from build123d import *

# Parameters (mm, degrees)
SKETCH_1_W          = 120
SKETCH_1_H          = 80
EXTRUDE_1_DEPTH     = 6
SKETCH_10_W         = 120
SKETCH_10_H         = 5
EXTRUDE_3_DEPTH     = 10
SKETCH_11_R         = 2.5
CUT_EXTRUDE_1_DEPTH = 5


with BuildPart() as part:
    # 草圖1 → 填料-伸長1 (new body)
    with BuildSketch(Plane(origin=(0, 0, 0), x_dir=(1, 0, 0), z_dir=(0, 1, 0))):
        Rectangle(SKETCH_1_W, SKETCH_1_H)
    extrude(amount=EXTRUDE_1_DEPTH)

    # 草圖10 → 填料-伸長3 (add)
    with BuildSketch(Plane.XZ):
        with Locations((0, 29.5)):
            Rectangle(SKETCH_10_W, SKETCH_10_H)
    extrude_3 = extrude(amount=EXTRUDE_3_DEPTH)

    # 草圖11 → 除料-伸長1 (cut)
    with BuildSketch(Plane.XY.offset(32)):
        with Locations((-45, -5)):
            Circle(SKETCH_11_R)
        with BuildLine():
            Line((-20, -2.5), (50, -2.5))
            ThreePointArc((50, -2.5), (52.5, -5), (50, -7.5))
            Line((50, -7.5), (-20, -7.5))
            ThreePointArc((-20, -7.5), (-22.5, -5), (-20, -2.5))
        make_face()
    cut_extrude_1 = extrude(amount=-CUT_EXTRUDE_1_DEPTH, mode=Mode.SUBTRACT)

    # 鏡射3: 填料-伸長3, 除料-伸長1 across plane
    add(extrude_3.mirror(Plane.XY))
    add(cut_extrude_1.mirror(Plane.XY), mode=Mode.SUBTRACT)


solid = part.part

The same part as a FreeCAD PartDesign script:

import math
import FreeCAD as App
import Part
import Sketcher
from FreeCAD import Vector
Q = App.Units.Quantity


def add_polygon(sketch, points):
    """Adds a closed chain of lines whose ends are joined by coincident constraints."""
    first, n = sketch.GeometryCount, len(points)
    for a, b in zip(points, points[1:] + points[:1]):
        sketch.addGeometry(Part.LineSegment(App.Vector(*a, 0), App.Vector(*b, 0)), False)
    for i in range(n):
        sketch.addConstraint(Sketcher.Constraint("Coincident", first + i, 2, first + (i + 1) % n, 1))

doc = App.newDocument("Part")
body = doc.addObject("PartDesign::Body", "Body")

sketch1 = body.newObject("Sketcher::SketchObject", "Sketch")
sketch1.AttachmentSupport = (doc.getObject("XZ_Plane"), [""])
sketch1.MapMode = "FlatFace"
add_polygon(sketch1, [(-60, -40), (-60, 40), (60, 40), (60, -40)])
sketch1.addConstraint(Sketcher.Constraint("Vertical", 0))
sketch1.addConstraint(Sketcher.Constraint("Horizontal", 1))
sketch1.addConstraint(Sketcher.Constraint("Vertical", 2))
sketch1.addConstraint(Sketcher.Constraint("Horizontal", 3))
sketch1.addConstraint(Sketcher.Constraint("Symmetric", 0, 2, 2, 2, -1, 1))
sketch1.addConstraint(Sketcher.Constraint("DistanceX", 1, 1, 1, 2, Q("120 mm")))
sketch1.addConstraint(Sketcher.Constraint("DistanceY", 0, 1, 0, 2, Q("80 mm")))
pad1 = body.newObject("PartDesign::Pad", "Pad")
pad1.Profile = sketch1
pad1.Length = 6
pad1.Reversed = True

sketch2 = body.newObject("Sketcher::SketchObject", "Sketch001")
sketch2.AttachmentSupport = (doc.getObject("XZ_Plane"), [""])
sketch2.MapMode = "FlatFace"
add_polygon(sketch2, [(-60, 32), (-60, 27), (60, 27), (60, 32)])
sketch2.addConstraint(Sketcher.Constraint("Vertical", 0))
sketch2.addConstraint(Sketcher.Constraint("Horizontal", 1))
sketch2.addConstraint(Sketcher.Constraint("Vertical", 2))
sketch2.addConstraint(Sketcher.Constraint("Horizontal", 3))
sketch2.addConstraint(Sketcher.Constraint("DistanceX", 1, 1, 1, 2, Q("120 mm")))
sketch2.addConstraint(Sketcher.Constraint("DistanceY", 0, 2, 0, 1, Q("5 mm")))
sketch2.addConstraint(Sketcher.Constraint("DistanceX", 0, 2, -1, 1, Q("60 mm")))
sketch2.addConstraint(Sketcher.Constraint("DistanceY", -1, 1, 0, 2, Q("27 mm")))
pad2 = body.newObject("PartDesign::Pad", "Pad001")
pad2.Profile = sketch2
pad2.Length = 10

sketch3 = body.newObject("Sketcher::SketchObject", "Sketch002")
sketch3.AttachmentSupport = (doc.getObject("XY_Plane"), [""])
sketch3.MapMode = "FlatFace"
sketch3.AttachmentOffset = App.Placement(Vector(0, 0, 32), App.Rotation())
sketch3.addGeometry(Part.Circle(Vector(-45, -5, 0), Vector(0, 0, 1), 2.5), False)
sketch3.addGeometry(Part.LineSegment(Vector(50, -2.5, 0), Vector(-20, -2.5, 0)), False)
sketch3.addGeometry(Part.ArcOfCircle(Part.Circle(Vector(-20, -5, 0), Vector(0, 0, 1), 2.5), math.radians(90), math.radians(270)), False)
sketch3.addGeometry(Part.LineSegment(Vector(-20, -7.5, 0), Vector(50, -7.5, 0)), False)
sketch3.addGeometry(Part.ArcOfCircle(Part.Circle(Vector(50, -5, 0), Vector(0, 0, 1), 2.5), math.radians(-90), math.radians(90)), False)
sketch3.addConstraint(Sketcher.Constraint("Tangent", 1, 2, 2, 1))
sketch3.addConstraint(Sketcher.Constraint("Tangent", 2, 2, 3, 1))
sketch3.addConstraint(Sketcher.Constraint("Tangent", 3, 2, 4, 1))
sketch3.addConstraint(Sketcher.Constraint("Tangent", 4, 2, 1, 1))
sketch3.addConstraint(Sketcher.Constraint("Horizontal", 1))
sketch3.addConstraint(Sketcher.Constraint("Horizontal", 3))
sketch3.addConstraint(Sketcher.Constraint("Equal", 0, 2))
sketch3.addConstraint(Sketcher.Constraint("Horizontal", 0, 3, 2, 3))
sketch3.addConstraint(Sketcher.Constraint("Diameter", 0, Q("5 mm")))
sketch3.addConstraint(Sketcher.Constraint("DistanceX", 1, 2, 1, 1, Q("70 mm")))
sketch3.addConstraint(Sketcher.Constraint("DistanceX", 0, 3, -1, 1, Q("45 mm")))
sketch3.addConstraint(Sketcher.Constraint("DistanceY", 0, 3, -1, 1, Q("5 mm")))
sketch3.addConstraint(Sketcher.Constraint("DistanceX", 2, 3, -1, 1, Q("20 mm")))
pocket1 = body.newObject("PartDesign::Pocket", "Pocket")
pocket1.Profile = sketch3
pocket1.Length = 5
doc.recompute()

mirrored = body.newObject("PartDesign::Mirrored", "Mirrored")
mirrored.Originals = [pad2, pocket1]
mirrored.MirrorPlane = (doc.getObject("XY_Plane"), [""])
body.Tip = mirrored

doc.recompute()
